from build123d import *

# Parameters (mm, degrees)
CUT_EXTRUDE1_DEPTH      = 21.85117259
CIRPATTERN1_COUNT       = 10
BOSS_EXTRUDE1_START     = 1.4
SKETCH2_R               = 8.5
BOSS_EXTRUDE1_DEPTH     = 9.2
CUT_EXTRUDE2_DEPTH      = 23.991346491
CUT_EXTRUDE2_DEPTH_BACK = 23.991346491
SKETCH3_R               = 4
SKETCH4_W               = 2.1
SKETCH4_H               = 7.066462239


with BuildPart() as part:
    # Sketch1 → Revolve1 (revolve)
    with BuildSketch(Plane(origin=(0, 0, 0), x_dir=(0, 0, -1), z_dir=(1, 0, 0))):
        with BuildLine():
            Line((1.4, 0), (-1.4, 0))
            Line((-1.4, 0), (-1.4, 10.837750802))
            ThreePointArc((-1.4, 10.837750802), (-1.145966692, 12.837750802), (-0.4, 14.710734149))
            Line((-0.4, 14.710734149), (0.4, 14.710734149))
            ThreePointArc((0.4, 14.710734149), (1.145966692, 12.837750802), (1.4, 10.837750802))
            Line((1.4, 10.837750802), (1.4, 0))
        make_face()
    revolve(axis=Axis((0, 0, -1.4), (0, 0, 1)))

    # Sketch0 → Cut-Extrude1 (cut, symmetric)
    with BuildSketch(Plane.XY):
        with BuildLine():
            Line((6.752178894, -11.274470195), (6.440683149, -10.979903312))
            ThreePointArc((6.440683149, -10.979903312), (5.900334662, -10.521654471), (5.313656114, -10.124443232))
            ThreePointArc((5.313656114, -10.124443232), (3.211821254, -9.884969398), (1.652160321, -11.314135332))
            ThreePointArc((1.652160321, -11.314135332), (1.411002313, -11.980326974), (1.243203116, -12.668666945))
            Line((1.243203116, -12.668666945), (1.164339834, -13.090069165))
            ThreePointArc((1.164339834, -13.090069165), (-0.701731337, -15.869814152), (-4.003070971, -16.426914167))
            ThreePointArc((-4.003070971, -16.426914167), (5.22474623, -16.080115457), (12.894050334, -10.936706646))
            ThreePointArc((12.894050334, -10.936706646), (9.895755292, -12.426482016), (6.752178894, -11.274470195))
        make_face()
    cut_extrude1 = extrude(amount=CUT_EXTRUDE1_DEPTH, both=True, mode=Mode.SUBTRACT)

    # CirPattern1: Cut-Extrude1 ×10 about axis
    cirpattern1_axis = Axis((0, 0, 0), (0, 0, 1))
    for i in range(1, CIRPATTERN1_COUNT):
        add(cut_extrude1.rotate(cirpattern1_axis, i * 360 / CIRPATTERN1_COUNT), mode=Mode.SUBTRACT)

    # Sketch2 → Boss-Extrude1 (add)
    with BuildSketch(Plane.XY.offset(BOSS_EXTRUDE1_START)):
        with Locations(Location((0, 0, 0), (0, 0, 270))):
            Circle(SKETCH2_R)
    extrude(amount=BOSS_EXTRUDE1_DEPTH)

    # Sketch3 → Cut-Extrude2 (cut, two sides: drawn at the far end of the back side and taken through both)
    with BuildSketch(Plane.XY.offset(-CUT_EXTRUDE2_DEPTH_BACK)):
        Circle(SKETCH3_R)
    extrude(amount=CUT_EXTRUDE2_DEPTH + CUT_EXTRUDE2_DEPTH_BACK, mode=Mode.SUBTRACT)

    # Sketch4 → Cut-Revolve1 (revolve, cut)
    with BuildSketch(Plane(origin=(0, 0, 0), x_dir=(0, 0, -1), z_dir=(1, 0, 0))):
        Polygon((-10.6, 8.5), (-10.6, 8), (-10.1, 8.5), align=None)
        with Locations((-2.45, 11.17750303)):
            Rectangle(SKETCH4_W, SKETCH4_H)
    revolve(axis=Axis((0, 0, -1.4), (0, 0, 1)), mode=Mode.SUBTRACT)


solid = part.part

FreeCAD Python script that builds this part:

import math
import FreeCAD as App
import Part
import Sketcher
from FreeCAD import Vector
Q = App.Units.Quantity


def add_polygon(sketch, points):
    """Adds a closed chain of lines whose ends are joined by coincident constraints."""
    first, n = sketch.GeometryCount, len(points)
    for a, b in zip(points, points[1:] + points[:1]):
        sketch.addGeometry(Part.LineSegment(App.Vector(*a, 0), App.Vector(*b, 0)), False)
    for i in range(n):
        sketch.addConstraint(Sketcher.Constraint("Coincident", first + i, 2, first + (i + 1) % n, 1))

doc = App.newDocument("Part")
params = doc.addObject("Spreadsheet::Sheet", "Params")
for row, (alias, value) in enumerate([
    ("sketch1_radius", "8 mm"),
    ("sketch1_height", "2.8 mm"),
    ("sketch1_height2", "0.8 mm"),
    ("revolution_angle", "360 deg"),
    ("pocket1_length", "43.702345 mm"),
    ("sketch3_diameter", "17 mm"),
    ("pad1_length", "9.2 mm"),
    ("sketch4_diameter", "8 mm"),
    ("sketch5_width", "0.5 mm"),
    ("sketch5_height", "2.1 mm"),
    ("groove_angle", "360 deg"),
], start=1):
    params.set(f"A{row}", alias)
    params.set(f"B{row}", "=" + value)
    params.setAlias(f"B{row}", alias)

body = doc.addObject("PartDesign::Body", "Body")

sketch1 = body.newObject("Sketcher::SketchObject", "Sketch")
sketch1.AttachmentSupport = (doc.getObject("YZ_Plane"), [""])
sketch1.MapMode = "FlatFace"
sketch1.addGeometry([
    Part.LineSegment(Vector(0, 1.4, 0), Vector(0, -1.4, 0)),
    Part.LineSegment(Vector(0, -1.4, 0), Vector(10.8, -1.4, 0)),
    Part.ArcOfCircle(Part.Circle(Vector(10.8, 6.6, 0), Vector(0, 0, 1), 8), math.radians(-90), math.radians(-61)),
    Part.LineSegment(Vector(14.7, -0.4, 0), Vector(14.7, 0.4, 0)),
    Part.ArcOfCircle(Part.Circle(Vector(10.8, -6.6, 0), Vector(0, 0, 1), 8), math.radians(61), math.radians(90)),
    Part.LineSegment(Vector(10.8, 1.4, 0), Vector(0, 1.4, 0)),
], False)
sketch1.addConstraint([
    Sketcher.Constraint("Coincident", 0, 2, 1, 1),
    Sketcher.Constraint("Tangent", 1, 2, 2, 1),
    Sketcher.Constraint("Coincident", 2, 2, 3, 1),
    Sketcher.Constraint("Coincident", 3, 2, 4, 1),
    Sketcher.Constraint("Tangent", 4, 2, 5, 1),
    Sketcher.Constraint("Coincident", 5, 2, 0, 1),
    Sketcher.Constraint("Vertical", 0),
    Sketcher.Constraint("Horizontal", 1),
    Sketcher.Constraint("Vertical", 3),
    Sketcher.Constraint("Horizontal", 5),
    Sketcher.Constraint("Equal", 2, 4),
    Sketcher.Constraint("Symmetric", 0, 2, 5, 2, -1, 1),
    Sketcher.Constraint("Vertical", 2, 3, 4, 3),
    Sketcher.Constraint("Radius", 2, Q("8 mm")),
    Sketcher.Constraint("DistanceY", 0, 2, 0, 1, Q("2.8 mm")),
    Sketcher.Constraint("DistanceY", 3, 1, 3, 2, Q("0.8 mm")),
    Sketcher.Constraint("DistanceX", 1, 1, 1, 2, Q("10.837751 mm")),
])
sketch1.setExpression("Constraints[13]", "Params.sketch1_radius")
sketch1.setExpression("Constraints[14]", "Params.sketch1_height")
sketch1.setExpression("Constraints[15]", "Params.sketch1_height2")
revolution = body.newObject("PartDesign::Revolution", "Revolution")
revolution.Profile = sketch1
revolution.ReferenceAxis = (sketch1, ["V_Axis"])
revolution.setExpression("Angle", "Params.revolution_angle")

sketch2 = body.newObject("Sketcher::SketchObject", "Sketch001")
sketch2.AttachmentSupport = (doc.getObject("XY_Plane"), [""])
sketch2.MapMode = "FlatFace"
sketch2.addGeometry([
    Part.LineSegment(Vector(6.75, -11.27, 0), Vector(6.44, -10.98, 0)),
    Part.ArcOfCircle(Part.Circle(Vector(1.94, -15.74, 0), Vector(0, 0, 1), 6.55), math.radians(46.6), math.radians(59)),
    Part.ArcOfCircle(Part.Circle(Vector(4, -12.31, 0), Vector(0, 0, 1), 2.55), math.radians(59), math.radians(157)),
    Part.ArcOfCircle(Part.Circle(Vector(7.68, -13.87, 0), Vector(0, 0, 1), 6.55), math.radians(157), math.radians(169.4)),
    Part.LineSegment(Vector(1.24, -12.67, 0), Vector(1.16, -13.09, 0)),
    Part.ArcOfCircle(Part.Circle(Vector(-3, -12.31, 0), Vector(0, 0, 1), 4.24), math.radians(-104), math.radians(-11)),
    Part.ArcOfCircle(Part.Circle(Vector(0, 0, 0), Vector(0, 0, 1), 16.91), math.radians(-104), math.radians(-40)),
    Part.ArcOfCircle(Part.Circle(Vector(9.66, -8.2, 0), Vector(0, 0, 1), 4.24), math.radians(-133), math.radians(-40)),
], False)
sketch2.addConstraint([
    Sketcher.Constraint("Tangent", 0, 2, 1, 1),
    Sketcher.Constraint("Tangent", 1, 2, 2, 1),
    Sketcher.Constraint("Tangent", 2, 2, 3, 1),
    Sketcher.Constraint("Tangent", 3, 2, 4, 1),
    Sketcher.Constraint("Tangent", 4, 2, 5, 2),
    Sketcher.Constraint("Tangent", 5, 1, 6, 1),
    Sketcher.Constraint("Tangent", 6, 2, 7, 2),
    Sketcher.Constraint("Tangent", 7, 1, 0, 1),
    Sketcher.Constraint("Coincident", 6, 3, -1, 1),
    Sketcher.Constraint("Equal", 1, 3),
    Sketcher.Constraint("Equal", 5, 7),
    Sketcher.Constraint("Horizontal", 2, 3, 5, 3),
    Sketcher.Constraint("Equal", 0, 4),
    Sketcher.Constraint("DistanceX", -1, 1, 2, 3, Q("4 mm")),
    Sketcher.Constraint("DistanceX", 5, 3, -1, 1, Q("3 mm")),
    Sketcher.Constraint("Angle", 0, Q("136.6 deg")),
    Sketcher.Constraint("Angle", 4, Q("-100.6 deg")),
    Sketcher.Constraint("Radius", 1, Q("6.5506 mm")),
    Sketcher.Constraint("Radius", 2, Q("2.5506 mm")),
    Sketcher.Constraint("Radius", 5, Q("4.236637 mm")),
    Sketcher.Constraint("Radius", 6, Q("16.907634 mm")),
])
pocket1 = body.newObject("PartDesign::Pocket", "Pocket")
pocket1.Profile = sketch2
pocket1.setExpression("Length", "Params.pocket1_length")
pocket1.Midplane = True
doc.recompute()

polarpattern = body.newObject("PartDesign::PolarPattern", "PolarPattern")
polarpattern.Originals = [pocket1]
polarpattern.Axis = (doc.getObject("Z_Axis"), [""])
polarpattern.Angle = 360
polarpattern.Occurrences = 10
body.Tip = polarpattern

sketch3 = body.newObject("Sketcher::SketchObject", "Sketch002")
sketch3.AttachmentSupport = (doc.getObject("XY_Plane"), [""])
sketch3.MapMode = "FlatFace"
sketch3.AttachmentOffset = App.Placement(Vector(0, 0, 1.4), App.Rotation())
sketch3.addGeometry(Part.Circle(Vector(0, 0, 0), Vector(0, 0, 1), 8), False)
sketch3.addConstraint([
    Sketcher.Constraint("Coincident", 0, 3, -1, 1),
    Sketcher.Constraint("Diameter", 0, Q("17 mm")),
])
sketch3.setExpression("Constraints[1]", "Params.sketch3_diameter")
pad1 = body.newObject("PartDesign::Pad", "Pad")
pad1.Profile = sketch3
pad1.setExpression("Length", "Params.pad1_length")

sketch4 = body.newObject("Sketcher::SketchObject", "Sketch003")
sketch4.AttachmentSupport = (doc.getObject("XY_Plane"), [""])
sketch4.MapMode = "FlatFace"
sketch4.addGeometry(Part.Circle(Vector(0, 0, 0), Vector(0, 0, 1), 4), False)
sketch4.addConstraint([
    Sketcher.Constraint("Coincident", 0, 3, -1, 1),
    Sketcher.Constraint("Diameter", 0, Q("8 mm")),
])
sketch4.setExpression("Constraints[1]", "Params.sketch4_diameter")
pocket2 = body.newObject("PartDesign::Pocket", "Pocket001")
pocket2.Profile = sketch4
pocket2.Type = "ThroughAll"
pocket2.Midplane = True

sketch5 = body.newObject("Sketcher::SketchObject", "Sketch004")
sketch5.AttachmentSupport = (doc.getObject("YZ_Plane"), [""])
sketch5.MapMode = "FlatFace"
add_polygon(sketch5, [(8.5, 10.6), (8, 10.6), (8.5, 10.1)])
add_polygon(sketch5, [(14.7, 3.5), (7.6, 3.5), (7.6, 1.4), (14.7, 1.4)])
sketch5.addConstraint([
    Sketcher.Constraint("Horizontal", 0),
    Sketcher.Constraint("Vertical", 2),
    Sketcher.Constraint("Horizontal", 3),
    Sketcher.Constraint("Vertical", 4),
    Sketcher.Constraint("Horizontal", 5),
    Sketcher.Constraint("Vertical", 6),
    Sketcher.Constraint("Equal", 0, 2),
    Sketcher.Constraint("DistanceX", 0, 2, 0, 1, Q("0.5 mm")),
    Sketcher.Constraint("DistanceY", 4, 2, 4, 1, Q("2.1 mm")),
    Sketcher.Constraint("DistanceX", -1, 1, 0, 2, Q("8 mm")),
    Sketcher.Constraint("DistanceY", -1, 1, 0, 2, Q("10.6 mm")),
    Sketcher.Constraint("DistanceY", -1, 1, 3, 2, Q("3.5 mm")),
    Sketcher.Constraint("DistanceX", 3, 2, 3, 1, Q("7.066462 mm")),
    Sketcher.Constraint("DistanceX", -1, 1, 3, 2, Q("7.644272 mm")),
])
sketch5.setExpression("Constraints[14]", "Params.sketch5_width")
sketch5.setExpression("Constraints[15]", "Params.sketch5_height")
groove = body.newObject("PartDesign::Groove", "Groove")
groove.Profile = sketch5
groove.ReferenceAxis = (sketch5, ["V_Axis"])
groove.setExpression("Angle", "Params.groove_angle")

doc.recompute()
